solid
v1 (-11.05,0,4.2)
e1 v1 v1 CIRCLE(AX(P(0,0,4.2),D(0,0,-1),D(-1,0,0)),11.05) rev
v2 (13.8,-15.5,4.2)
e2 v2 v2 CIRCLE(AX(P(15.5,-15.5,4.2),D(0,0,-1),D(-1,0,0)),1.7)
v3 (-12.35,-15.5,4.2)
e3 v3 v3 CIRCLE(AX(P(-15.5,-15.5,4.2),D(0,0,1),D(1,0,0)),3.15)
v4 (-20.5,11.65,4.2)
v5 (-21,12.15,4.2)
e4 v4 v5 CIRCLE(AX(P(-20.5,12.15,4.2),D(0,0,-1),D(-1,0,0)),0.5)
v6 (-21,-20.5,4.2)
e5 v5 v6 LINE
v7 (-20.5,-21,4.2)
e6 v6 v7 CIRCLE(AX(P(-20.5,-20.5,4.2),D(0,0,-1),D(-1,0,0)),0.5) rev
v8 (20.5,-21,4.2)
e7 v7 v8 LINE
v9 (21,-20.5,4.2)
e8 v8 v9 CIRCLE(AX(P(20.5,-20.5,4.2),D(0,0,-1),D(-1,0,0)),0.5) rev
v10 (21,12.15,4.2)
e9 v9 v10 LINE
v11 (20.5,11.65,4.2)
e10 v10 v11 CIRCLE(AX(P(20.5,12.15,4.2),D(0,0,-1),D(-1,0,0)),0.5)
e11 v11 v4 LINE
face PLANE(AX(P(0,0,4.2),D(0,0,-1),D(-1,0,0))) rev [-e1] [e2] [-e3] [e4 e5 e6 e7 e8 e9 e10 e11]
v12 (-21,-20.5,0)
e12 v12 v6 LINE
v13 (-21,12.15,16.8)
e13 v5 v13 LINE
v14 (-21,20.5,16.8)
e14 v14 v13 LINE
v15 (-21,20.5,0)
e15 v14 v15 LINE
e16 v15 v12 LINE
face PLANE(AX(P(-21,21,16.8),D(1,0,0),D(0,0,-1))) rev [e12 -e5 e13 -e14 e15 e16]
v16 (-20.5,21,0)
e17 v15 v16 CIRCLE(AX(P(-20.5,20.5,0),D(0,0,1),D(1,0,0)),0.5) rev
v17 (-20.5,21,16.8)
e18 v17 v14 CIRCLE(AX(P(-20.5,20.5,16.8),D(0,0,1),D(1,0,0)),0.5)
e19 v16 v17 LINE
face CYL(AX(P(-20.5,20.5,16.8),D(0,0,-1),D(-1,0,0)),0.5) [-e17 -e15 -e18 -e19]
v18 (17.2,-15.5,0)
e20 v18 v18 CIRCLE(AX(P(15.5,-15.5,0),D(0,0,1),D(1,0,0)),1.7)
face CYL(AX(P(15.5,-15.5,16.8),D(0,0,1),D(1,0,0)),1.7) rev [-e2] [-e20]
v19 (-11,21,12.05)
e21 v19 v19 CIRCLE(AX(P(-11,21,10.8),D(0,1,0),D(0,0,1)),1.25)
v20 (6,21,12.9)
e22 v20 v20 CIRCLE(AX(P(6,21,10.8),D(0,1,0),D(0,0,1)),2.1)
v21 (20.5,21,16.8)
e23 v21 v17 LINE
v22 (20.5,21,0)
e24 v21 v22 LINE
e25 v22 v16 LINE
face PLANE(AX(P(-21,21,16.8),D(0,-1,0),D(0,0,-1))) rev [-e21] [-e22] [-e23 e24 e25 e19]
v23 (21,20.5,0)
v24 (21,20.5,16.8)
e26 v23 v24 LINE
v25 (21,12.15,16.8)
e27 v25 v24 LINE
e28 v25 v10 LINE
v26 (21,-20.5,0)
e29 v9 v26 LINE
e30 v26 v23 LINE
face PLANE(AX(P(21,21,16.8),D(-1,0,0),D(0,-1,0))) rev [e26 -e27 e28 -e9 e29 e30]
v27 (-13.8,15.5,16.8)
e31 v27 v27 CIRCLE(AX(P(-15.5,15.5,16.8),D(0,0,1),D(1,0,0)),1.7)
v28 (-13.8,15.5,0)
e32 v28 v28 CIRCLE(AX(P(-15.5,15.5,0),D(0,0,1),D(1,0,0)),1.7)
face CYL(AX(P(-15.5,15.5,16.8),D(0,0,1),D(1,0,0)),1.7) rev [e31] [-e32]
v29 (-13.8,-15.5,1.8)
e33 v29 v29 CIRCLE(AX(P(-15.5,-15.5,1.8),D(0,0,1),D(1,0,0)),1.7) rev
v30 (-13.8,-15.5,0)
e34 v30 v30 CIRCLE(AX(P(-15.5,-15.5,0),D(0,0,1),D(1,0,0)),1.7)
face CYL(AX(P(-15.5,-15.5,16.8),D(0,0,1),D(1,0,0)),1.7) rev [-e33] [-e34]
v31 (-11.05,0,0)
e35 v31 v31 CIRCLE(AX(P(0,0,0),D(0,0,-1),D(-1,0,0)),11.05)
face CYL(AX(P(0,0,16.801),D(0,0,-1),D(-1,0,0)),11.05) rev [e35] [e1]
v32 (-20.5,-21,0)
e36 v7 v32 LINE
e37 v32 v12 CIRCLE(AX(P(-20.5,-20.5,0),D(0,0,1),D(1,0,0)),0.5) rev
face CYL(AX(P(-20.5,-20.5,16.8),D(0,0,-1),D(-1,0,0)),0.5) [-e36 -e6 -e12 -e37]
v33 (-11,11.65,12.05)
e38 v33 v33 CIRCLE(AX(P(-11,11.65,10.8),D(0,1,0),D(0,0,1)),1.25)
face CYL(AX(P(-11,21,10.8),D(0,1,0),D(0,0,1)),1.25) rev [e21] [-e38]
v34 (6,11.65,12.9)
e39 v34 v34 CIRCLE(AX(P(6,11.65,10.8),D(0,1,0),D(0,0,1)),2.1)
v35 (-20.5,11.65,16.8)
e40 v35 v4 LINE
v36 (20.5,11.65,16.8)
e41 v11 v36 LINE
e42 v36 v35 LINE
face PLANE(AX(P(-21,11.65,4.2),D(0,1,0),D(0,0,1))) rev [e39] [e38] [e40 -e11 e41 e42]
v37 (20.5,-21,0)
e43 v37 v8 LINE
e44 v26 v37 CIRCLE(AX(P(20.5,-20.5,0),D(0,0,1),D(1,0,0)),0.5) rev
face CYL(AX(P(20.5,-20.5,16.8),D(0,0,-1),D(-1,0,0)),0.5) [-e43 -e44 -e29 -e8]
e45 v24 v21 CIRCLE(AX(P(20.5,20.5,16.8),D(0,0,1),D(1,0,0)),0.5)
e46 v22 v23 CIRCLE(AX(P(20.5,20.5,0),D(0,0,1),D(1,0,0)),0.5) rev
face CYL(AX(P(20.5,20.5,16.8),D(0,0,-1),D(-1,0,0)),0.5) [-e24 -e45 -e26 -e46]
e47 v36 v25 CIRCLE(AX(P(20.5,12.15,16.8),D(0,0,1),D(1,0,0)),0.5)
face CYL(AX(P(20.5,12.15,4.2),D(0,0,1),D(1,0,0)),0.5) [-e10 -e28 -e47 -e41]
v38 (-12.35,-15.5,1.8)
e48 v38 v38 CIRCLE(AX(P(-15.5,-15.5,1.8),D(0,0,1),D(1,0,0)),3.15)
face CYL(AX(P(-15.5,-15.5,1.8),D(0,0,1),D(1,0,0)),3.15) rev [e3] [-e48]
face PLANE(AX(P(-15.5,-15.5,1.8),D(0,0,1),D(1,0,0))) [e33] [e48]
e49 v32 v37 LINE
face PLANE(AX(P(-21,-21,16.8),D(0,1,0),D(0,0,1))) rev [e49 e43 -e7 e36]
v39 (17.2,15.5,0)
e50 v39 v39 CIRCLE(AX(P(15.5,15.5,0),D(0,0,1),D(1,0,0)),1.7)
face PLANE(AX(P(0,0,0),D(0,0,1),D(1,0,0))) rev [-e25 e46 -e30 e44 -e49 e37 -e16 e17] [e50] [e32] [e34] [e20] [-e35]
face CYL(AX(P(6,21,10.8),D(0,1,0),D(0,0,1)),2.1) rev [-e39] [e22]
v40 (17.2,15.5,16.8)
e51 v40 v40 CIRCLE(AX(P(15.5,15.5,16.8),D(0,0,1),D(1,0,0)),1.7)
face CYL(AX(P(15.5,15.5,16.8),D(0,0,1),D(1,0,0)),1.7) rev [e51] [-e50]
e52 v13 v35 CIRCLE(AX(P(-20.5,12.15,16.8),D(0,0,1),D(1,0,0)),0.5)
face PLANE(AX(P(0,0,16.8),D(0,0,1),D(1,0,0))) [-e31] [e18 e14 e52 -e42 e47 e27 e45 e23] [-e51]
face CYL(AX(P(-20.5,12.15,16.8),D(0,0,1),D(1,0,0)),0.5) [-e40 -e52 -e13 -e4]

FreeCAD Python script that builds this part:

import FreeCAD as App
import Part
import Sketcher

V = App.Vector


def edges_at(feature, points):
    """Names of the edges that pass closest to the given points."""
    edges = feature.Shape.Edges
    near = lambda p: min(range(len(edges)), key=lambda i: edges[i].distToShape(Part.Vertex(*p))[0])
    return sorted({f"Edge{near(p) + 1}" for p in points})


def add_polygon(sketch, points):
    """Adds a closed chain of lines whose ends are joined by coincident constraints."""
    first, n = sketch.GeometryCount, len(points)
    for a, b in zip(points, points[1:] + points[:1]):
        sketch.addGeometry(Part.LineSegment(App.Vector(*a, 0), App.Vector(*b, 0)), False)
    for i in range(n):
        sketch.addConstraint(Sketcher.Constraint("Coincident", first + i, 2, first + (i + 1) % n, 1))

doc = App.newDocument("Part")
body = doc.addObject("PartDesign::Body", "Body")

sketch1 = body.newObject("Sketcher::SketchObject", "Sketch")
sketch1.AttachmentSupport = (doc.getObject("XY_Plane"), [""])
sketch1.MapMode = "FlatFace"
add_polygon(sketch1, [(-21, 21), (-21, -21), (21, -21), (21, 21)])
sketch1.addConstraint(Sketcher.Constraint("Vertical", 0))
sketch1.addConstraint(Sketcher.Constraint("Horizontal", 1))
sketch1.addConstraint(Sketcher.Constraint("Vertical", 2))
sketch1.addConstraint(Sketcher.Constraint("Horizontal", 3))
sketch1.addConstraint(Sketcher.Constraint("Symmetric", 0, 2, 2, 2, -1, 1))
sketch1.addConstraint(Sketcher.Constraint("Equal", 3, 0))
sketch1.addConstraint(Sketcher.Constraint("DistanceX", 1, 1, 1, 2, 42.0))
pad1 = body.newObject("PartDesign::Pad", "Pad")
pad1.Profile = sketch1
pad1.Length = 16.8

sketch2 = body.newObject("Sketcher::SketchObject", "Sketch001")
sketch2.AttachmentSupport = (doc.getObject("XY_Plane"), [""])
sketch2.MapMode = "FlatFace"
sketch2.AttachmentOffset = App.Placement(V(0, 0, 16.8), App.Rotation())
add_polygon(sketch2, [(-21, 12), (-21, -21), (21, -21), (21, 12)])
sketch2.addConstraint(Sketcher.Constraint("Vertical", 0))
sketch2.addConstraint(Sketcher.Constraint("Horizontal", 1))
sketch2.addConstraint(Sketcher.Constraint("Vertical", 2))
sketch2.addConstraint(Sketcher.Constraint("Horizontal", 3))
sketch2.addConstraint(Sketcher.Constraint("DistanceX", 1, 1, 1, 2, 42.0))
sketch2.addConstraint(Sketcher.Constraint("DistanceX", 0, 2, -1, 1, 21.0))
sketch2.addConstraint(Sketcher.Constraint("DistanceY", 0, 2, -1, 1, 21.0))
sketch2.addConstraint(Sketcher.Constraint("DistanceY", 0, 2, 0, 1, 32.65))
pocket1 = body.newObject("PartDesign::Pocket", "Pocket")
pocket1.Profile = sketch2
pocket1.Length = 12.6

sketch3 = body.newObject("Sketcher::SketchObject", "Sketch002")
sketch3.AttachmentSupport = (doc.getObject("XY_Plane"), [""])
sketch3.MapMode = "FlatFace"
sketch3.addGeometry(Part.Circle(V(0, 0, 0), V(0, 0, 1), 11), False)
sketch3.addConstraint(Sketcher.Constraint("Coincident", 0, 3, -1, 1))
sketch3.addConstraint(Sketcher.Constraint("Diameter", 0, 22.1))
pocket2 = body.newObject("PartDesign::Pocket", "Pocket001")
pocket2.Profile = sketch3
pocket2.Type = "UpToFirst"
pocket2.Reversed = True

sketch4 = body.newObject("Sketcher::SketchObject", "Sketch003")
sketch4.AttachmentSupport = (doc.getObject("XY_Plane"), [""])
sketch4.MapMode = "FlatFace"
sketch4.AttachmentOffset = App.Placement(V(0, 0, 16.8), App.Rotation())
sketch4.addGeometry(Part.Circle(V(15.5, 15.5, 0), V(0, 0, 1), 1.7), False)
sketch4.addGeometry(Part.Circle(V(-15.5, 15.5, 0), V(0, 0, 1), 1.7), False)
sketch4.addGeometry(Part.Circle(V(-15.5, -15.5, 0), V(0, 0, 1), 1.7), False)
sketch4.addGeometry(Part.Circle(V(15.5, -15.5, 0), V(0, 0, 1), 1.7), False)
sketch4.addConstraint(Sketcher.Constraint("Equal", 0, 1))
sketch4.addConstraint(Sketcher.Constraint("Equal", 1, 2))
sketch4.addConstraint(Sketcher.Constraint("Equal", 2, 3))
sketch4.addConstraint(Sketcher.Constraint("Symmetric", 0, 3, 2, 3, -1, 1))
sketch4.addConstraint(Sketcher.Constraint("Symmetric", 1, 3, 3, 3, -1, 1))
sketch4.addConstraint(Sketcher.Constraint("Symmetric", 0, 3, 1, 3, -2))
sketch4.addConstraint(Sketcher.Constraint("Diameter", 0, 3.4))
sketch4.addConstraint(Sketcher.Constraint("DistanceX", 1, 3, 0, 3, 31.0))
sketch4.addConstraint(Sketcher.Constraint("DistanceY", 2, 3, 1, 3, 31.0))
doc.recompute()
hole = body.newObject("PartDesign::Hole", "Hole")
hole.Profile = sketch4
hole.ThreadType = "None"
hole.Diameter = 3.4
hole.DepthType = "ThroughAll"

sketch5 = body.newObject("Sketcher::SketchObject", "Sketch004")
sketch5.AttachmentSupport = (doc.getObject("XY_Plane"), [""])
sketch5.MapMode = "FlatFace"
sketch5.AttachmentOffset = App.Placement(V(0, 0, 4.2), App.Rotation())
sketch5.addGeometry(Part.Circle(V(-15.5, -15.5, 0), V(0, 0, 1), 3.1), False)
sketch5.addConstraint(Sketcher.Constraint("Diameter", 0, 6.3))
sketch5.addConstraint(Sketcher.Constraint("DistanceX", 0, 3, -1, 1, 15.5))
sketch5.addConstraint(Sketcher.Constraint("DistanceY", 0, 3, -1, 1, 15.5))
pocket3 = body.newObject("PartDesign::Pocket", "Pocket002")
pocket3.Profile = sketch5
pocket3.Length = 2.4

sketch6 = body.newObject("Sketcher::SketchObject", "Sketch005")
sketch6.AttachmentSupport = (doc.getObject("XZ_Plane"), [""])
sketch6.MapMode = "FlatFace"
sketch6.AttachmentOffset = App.Placement(V(0, 0, -21), App.Rotation())
sketch6.addGeometry(Part.Circle(V(6, 10.8, 0), V(0, 0, 1), 2.1), False)
sketch6.addConstraint(Sketcher.Constraint("Diameter", 0, 4.2))
sketch6.addConstraint(Sketcher.Constraint("DistanceX", -1, 1, 0, 3, 6.0))
sketch6.addConstraint(Sketcher.Constraint("DistanceY", -1, 1, 0, 3, 10.8))
doc.recompute()
hole2 = body.newObject("PartDesign::Hole", "Hole001")
hole2.Profile = sketch6
hole2.ThreadType = "None"
hole2.Diameter = 4.2
hole2.DepthType = "ThroughAll"
hole2.Reversed = True

sketch7 = body.newObject("Sketcher::SketchObject", "Sketch006")
sketch7.AttachmentSupport = (doc.getObject("XZ_Plane"), [""])
sketch7.MapMode = "FlatFace"
sketch7.AttachmentOffset = App.Placement(V(0, 0, -21), App.Rotation())
sketch7.addGeometry(Part.Circle(V(-11, 10.8, 0), V(0, 0, 1), 1.2), False)
sketch7.addConstraint(Sketcher.Constraint("Diameter", 0, 2.5))
sketch7.addConstraint(Sketcher.Constraint("DistanceX", 0, 3, -1, 1, 11.0))
sketch7.addConstraint(Sketcher.Constraint("DistanceY", -1, 1, 0, 3, 10.8))
doc.recompute()
hole3 = body.newObject("PartDesign::Hole", "Hole002")
hole3.Profile = sketch7
hole3.ThreadType = "None"
hole3.Diameter = 2.5
hole3.DepthType = "ThroughAll"
hole3.Reversed = True
doc.recompute()

fillet = body.newObject("PartDesign::Fillet", "Fillet")
fillet.Base = (hole3, edges_at(hole3, [
    (21, -21, 2.1),
    (-21, -21, 2.1),
    (-21, 11.65, 10.5),
    (21, 11.65, 10.5),
    (-21, 21, 8.4),
    (21, 21, 8.4),
]))
fillet.Radius = 0.5

doc.recompute()
